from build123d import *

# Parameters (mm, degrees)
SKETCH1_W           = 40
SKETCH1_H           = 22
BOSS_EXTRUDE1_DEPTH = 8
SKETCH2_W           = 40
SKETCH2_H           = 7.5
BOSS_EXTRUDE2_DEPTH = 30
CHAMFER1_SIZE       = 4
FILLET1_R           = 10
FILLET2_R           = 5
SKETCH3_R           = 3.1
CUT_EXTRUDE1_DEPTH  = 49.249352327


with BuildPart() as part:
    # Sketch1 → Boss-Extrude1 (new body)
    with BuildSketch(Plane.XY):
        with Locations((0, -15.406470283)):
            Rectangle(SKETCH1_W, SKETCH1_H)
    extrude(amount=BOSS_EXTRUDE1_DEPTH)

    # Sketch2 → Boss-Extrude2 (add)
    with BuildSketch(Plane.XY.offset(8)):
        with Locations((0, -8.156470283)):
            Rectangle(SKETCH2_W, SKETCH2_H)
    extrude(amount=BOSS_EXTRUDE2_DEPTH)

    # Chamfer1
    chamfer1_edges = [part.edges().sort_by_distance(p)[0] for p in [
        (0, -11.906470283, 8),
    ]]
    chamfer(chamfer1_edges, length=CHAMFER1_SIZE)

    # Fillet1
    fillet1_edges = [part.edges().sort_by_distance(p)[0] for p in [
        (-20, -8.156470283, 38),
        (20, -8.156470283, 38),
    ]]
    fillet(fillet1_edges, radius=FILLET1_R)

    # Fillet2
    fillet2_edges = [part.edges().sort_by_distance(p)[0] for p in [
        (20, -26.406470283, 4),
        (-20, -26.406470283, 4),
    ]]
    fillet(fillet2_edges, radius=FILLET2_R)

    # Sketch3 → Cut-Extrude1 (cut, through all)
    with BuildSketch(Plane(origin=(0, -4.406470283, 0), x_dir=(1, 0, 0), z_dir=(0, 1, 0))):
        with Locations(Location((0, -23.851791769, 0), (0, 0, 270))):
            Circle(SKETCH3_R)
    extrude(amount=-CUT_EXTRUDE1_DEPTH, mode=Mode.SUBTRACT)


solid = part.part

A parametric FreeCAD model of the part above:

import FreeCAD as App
import Part
import Sketcher

V = App.Vector
Q = App.Units.Quantity


def edges_at(feature, points):
    """Names of the edges that pass closest to the given points."""
    edges = feature.Shape.Edges
    near = lambda p: min(range(len(edges)), key=lambda i: edges[i].distToShape(Part.Vertex(*p))[0])
    return sorted({f"Edge{near(p) + 1}" for p in points})


def add_polygon(sketch, points):
    """Adds a closed chain of lines whose ends are joined by coincident constraints."""
    first, n = sketch.GeometryCount, len(points)
    for a, b in zip(points, points[1:] + points[:1]):
        sketch.addGeometry(Part.LineSegment(App.Vector(*a, 0), App.Vector(*b, 0)), False)
    for i in range(n):
        sketch.addConstraint(Sketcher.Constraint("Coincident", first + i, 2, first + (i + 1) % n, 1))

doc = App.newDocument("Part")
body = doc.addObject("PartDesign::Body", "Body")

# Sketch on XY plane
sketch1 = body.newObject("Sketcher::SketchObject", "Sketch")
sketch1.AttachmentSupport = (doc.getObject("XY_Plane"), [""])
sketch1.MapMode = "FlatFace"
add_polygon(sketch1, [(-20, -4.40647), (-20, -26.40647), (20, -26.40647), (20, -4.40647)])  # lines 0-3
sketch1.addConstraint([
    Sketcher.Constraint("Vertical", 0),
    Sketcher.Constraint("Horizontal", 1),
    Sketcher.Constraint("Vertical", 2),
    Sketcher.Constraint("Horizontal", 3),
    Sketcher.Constraint("DistanceX", 1, 1, 1, 2, Q("40 mm")),
    Sketcher.Constraint("DistanceY", 0, 2, 0, 1, Q("22 mm")),
    Sketcher.Constraint("DistanceX", 0, 2, -1, 1, Q("20 mm")),
    Sketcher.Constraint("DistanceY", 0, 2, -1, 1, Q("26.40647 mm")),
])
pad1 = body.newObject("PartDesign::Pad", "Pad")
pad1.Profile = sketch1
pad1.Length = 8

# Sketch on XY plane
sketch2 = body.newObject("Sketcher::SketchObject", "Sketch001")
sketch2.AttachmentSupport = (doc.getObject("XY_Plane"), [""])
sketch2.MapMode = "FlatFace"
sketch2.AttachmentOffset = App.Placement(V(0, 0, 8), App.Rotation())
add_polygon(sketch2, [(-20, -4.40647), (-20, -11.90647), (20, -11.90647), (20, -4.40647)])  # lines 0-3
sketch2.addConstraint([
    Sketcher.Constraint("Vertical", 0),
    Sketcher.Constraint("Horizontal", 1),
    Sketcher.Constraint("Vertical", 2),
    Sketcher.Constraint("Horizontal", 3),
    Sketcher.Constraint("DistanceX", 1, 1, 1, 2, Q("40 mm")),
    Sketcher.Constraint("DistanceY", 0, 2, 0, 1, Q("7.5 mm")),
    Sketcher.Constraint("DistanceX", 0, 2, -1, 1, Q("20 mm")),
    Sketcher.Constraint("DistanceY", 0, 2, -1, 1, Q("11.90647 mm")),
])
pad2 = body.newObject("PartDesign::Pad", "Pad001")
pad2.Profile = sketch2
pad2.Length = 30
doc.recompute()

chamfer = body.newObject("PartDesign::Chamfer", "Chamfer")
chamfer.Base = (pad2, edges_at(pad2, [(0, -11.906, 8)]))
chamfer.Size = 4
doc.recompute()

fillet = body.newObject("PartDesign::Fillet", "Fillet")
fillet.Base = (chamfer, edges_at(chamfer, [(-20, -8.156, 38), (20, -8.156, 38)]))
fillet.Radius = 10
doc.recompute()

fillet2 = body.newObject("PartDesign::Fillet", "Fillet001")
fillet2.Base = (fillet, edges_at(fillet, [(20, -26.406, 4), (-20, -26.406, 4)]))
fillet2.Radius = 5

# Sketch on XZ plane
sketch3 = body.newObject("Sketcher::SketchObject", "Sketch002")
sketch3.AttachmentSupport = (doc.getObject("XZ_Plane"), [""])
sketch3.MapMode = "FlatFace"
sketch3.AttachmentOffset = App.Placement(V(0, 0, 4.40647), App.Rotation())
sketch3.addGeometry(Part.Circle(V(0, 23.851792, 0), V(0, 0, 1), 3.1), False)
sketch3.addConstraint([
    Sketcher.Constraint("PointOnObject", 0, 3, -2),
    Sketcher.Constraint("Diameter", 0, Q("6.2 mm")),
    Sketcher.Constraint("DistanceY", -1, 1, 0, 3, Q("23.851792 mm")),
])
pocket1 = body.newObject("PartDesign::Pocket", "Pocket")
pocket1.Profile = sketch3
pocket1.Type = "ThroughAll"
pocket1.Reversed = True

doc.recompute()
